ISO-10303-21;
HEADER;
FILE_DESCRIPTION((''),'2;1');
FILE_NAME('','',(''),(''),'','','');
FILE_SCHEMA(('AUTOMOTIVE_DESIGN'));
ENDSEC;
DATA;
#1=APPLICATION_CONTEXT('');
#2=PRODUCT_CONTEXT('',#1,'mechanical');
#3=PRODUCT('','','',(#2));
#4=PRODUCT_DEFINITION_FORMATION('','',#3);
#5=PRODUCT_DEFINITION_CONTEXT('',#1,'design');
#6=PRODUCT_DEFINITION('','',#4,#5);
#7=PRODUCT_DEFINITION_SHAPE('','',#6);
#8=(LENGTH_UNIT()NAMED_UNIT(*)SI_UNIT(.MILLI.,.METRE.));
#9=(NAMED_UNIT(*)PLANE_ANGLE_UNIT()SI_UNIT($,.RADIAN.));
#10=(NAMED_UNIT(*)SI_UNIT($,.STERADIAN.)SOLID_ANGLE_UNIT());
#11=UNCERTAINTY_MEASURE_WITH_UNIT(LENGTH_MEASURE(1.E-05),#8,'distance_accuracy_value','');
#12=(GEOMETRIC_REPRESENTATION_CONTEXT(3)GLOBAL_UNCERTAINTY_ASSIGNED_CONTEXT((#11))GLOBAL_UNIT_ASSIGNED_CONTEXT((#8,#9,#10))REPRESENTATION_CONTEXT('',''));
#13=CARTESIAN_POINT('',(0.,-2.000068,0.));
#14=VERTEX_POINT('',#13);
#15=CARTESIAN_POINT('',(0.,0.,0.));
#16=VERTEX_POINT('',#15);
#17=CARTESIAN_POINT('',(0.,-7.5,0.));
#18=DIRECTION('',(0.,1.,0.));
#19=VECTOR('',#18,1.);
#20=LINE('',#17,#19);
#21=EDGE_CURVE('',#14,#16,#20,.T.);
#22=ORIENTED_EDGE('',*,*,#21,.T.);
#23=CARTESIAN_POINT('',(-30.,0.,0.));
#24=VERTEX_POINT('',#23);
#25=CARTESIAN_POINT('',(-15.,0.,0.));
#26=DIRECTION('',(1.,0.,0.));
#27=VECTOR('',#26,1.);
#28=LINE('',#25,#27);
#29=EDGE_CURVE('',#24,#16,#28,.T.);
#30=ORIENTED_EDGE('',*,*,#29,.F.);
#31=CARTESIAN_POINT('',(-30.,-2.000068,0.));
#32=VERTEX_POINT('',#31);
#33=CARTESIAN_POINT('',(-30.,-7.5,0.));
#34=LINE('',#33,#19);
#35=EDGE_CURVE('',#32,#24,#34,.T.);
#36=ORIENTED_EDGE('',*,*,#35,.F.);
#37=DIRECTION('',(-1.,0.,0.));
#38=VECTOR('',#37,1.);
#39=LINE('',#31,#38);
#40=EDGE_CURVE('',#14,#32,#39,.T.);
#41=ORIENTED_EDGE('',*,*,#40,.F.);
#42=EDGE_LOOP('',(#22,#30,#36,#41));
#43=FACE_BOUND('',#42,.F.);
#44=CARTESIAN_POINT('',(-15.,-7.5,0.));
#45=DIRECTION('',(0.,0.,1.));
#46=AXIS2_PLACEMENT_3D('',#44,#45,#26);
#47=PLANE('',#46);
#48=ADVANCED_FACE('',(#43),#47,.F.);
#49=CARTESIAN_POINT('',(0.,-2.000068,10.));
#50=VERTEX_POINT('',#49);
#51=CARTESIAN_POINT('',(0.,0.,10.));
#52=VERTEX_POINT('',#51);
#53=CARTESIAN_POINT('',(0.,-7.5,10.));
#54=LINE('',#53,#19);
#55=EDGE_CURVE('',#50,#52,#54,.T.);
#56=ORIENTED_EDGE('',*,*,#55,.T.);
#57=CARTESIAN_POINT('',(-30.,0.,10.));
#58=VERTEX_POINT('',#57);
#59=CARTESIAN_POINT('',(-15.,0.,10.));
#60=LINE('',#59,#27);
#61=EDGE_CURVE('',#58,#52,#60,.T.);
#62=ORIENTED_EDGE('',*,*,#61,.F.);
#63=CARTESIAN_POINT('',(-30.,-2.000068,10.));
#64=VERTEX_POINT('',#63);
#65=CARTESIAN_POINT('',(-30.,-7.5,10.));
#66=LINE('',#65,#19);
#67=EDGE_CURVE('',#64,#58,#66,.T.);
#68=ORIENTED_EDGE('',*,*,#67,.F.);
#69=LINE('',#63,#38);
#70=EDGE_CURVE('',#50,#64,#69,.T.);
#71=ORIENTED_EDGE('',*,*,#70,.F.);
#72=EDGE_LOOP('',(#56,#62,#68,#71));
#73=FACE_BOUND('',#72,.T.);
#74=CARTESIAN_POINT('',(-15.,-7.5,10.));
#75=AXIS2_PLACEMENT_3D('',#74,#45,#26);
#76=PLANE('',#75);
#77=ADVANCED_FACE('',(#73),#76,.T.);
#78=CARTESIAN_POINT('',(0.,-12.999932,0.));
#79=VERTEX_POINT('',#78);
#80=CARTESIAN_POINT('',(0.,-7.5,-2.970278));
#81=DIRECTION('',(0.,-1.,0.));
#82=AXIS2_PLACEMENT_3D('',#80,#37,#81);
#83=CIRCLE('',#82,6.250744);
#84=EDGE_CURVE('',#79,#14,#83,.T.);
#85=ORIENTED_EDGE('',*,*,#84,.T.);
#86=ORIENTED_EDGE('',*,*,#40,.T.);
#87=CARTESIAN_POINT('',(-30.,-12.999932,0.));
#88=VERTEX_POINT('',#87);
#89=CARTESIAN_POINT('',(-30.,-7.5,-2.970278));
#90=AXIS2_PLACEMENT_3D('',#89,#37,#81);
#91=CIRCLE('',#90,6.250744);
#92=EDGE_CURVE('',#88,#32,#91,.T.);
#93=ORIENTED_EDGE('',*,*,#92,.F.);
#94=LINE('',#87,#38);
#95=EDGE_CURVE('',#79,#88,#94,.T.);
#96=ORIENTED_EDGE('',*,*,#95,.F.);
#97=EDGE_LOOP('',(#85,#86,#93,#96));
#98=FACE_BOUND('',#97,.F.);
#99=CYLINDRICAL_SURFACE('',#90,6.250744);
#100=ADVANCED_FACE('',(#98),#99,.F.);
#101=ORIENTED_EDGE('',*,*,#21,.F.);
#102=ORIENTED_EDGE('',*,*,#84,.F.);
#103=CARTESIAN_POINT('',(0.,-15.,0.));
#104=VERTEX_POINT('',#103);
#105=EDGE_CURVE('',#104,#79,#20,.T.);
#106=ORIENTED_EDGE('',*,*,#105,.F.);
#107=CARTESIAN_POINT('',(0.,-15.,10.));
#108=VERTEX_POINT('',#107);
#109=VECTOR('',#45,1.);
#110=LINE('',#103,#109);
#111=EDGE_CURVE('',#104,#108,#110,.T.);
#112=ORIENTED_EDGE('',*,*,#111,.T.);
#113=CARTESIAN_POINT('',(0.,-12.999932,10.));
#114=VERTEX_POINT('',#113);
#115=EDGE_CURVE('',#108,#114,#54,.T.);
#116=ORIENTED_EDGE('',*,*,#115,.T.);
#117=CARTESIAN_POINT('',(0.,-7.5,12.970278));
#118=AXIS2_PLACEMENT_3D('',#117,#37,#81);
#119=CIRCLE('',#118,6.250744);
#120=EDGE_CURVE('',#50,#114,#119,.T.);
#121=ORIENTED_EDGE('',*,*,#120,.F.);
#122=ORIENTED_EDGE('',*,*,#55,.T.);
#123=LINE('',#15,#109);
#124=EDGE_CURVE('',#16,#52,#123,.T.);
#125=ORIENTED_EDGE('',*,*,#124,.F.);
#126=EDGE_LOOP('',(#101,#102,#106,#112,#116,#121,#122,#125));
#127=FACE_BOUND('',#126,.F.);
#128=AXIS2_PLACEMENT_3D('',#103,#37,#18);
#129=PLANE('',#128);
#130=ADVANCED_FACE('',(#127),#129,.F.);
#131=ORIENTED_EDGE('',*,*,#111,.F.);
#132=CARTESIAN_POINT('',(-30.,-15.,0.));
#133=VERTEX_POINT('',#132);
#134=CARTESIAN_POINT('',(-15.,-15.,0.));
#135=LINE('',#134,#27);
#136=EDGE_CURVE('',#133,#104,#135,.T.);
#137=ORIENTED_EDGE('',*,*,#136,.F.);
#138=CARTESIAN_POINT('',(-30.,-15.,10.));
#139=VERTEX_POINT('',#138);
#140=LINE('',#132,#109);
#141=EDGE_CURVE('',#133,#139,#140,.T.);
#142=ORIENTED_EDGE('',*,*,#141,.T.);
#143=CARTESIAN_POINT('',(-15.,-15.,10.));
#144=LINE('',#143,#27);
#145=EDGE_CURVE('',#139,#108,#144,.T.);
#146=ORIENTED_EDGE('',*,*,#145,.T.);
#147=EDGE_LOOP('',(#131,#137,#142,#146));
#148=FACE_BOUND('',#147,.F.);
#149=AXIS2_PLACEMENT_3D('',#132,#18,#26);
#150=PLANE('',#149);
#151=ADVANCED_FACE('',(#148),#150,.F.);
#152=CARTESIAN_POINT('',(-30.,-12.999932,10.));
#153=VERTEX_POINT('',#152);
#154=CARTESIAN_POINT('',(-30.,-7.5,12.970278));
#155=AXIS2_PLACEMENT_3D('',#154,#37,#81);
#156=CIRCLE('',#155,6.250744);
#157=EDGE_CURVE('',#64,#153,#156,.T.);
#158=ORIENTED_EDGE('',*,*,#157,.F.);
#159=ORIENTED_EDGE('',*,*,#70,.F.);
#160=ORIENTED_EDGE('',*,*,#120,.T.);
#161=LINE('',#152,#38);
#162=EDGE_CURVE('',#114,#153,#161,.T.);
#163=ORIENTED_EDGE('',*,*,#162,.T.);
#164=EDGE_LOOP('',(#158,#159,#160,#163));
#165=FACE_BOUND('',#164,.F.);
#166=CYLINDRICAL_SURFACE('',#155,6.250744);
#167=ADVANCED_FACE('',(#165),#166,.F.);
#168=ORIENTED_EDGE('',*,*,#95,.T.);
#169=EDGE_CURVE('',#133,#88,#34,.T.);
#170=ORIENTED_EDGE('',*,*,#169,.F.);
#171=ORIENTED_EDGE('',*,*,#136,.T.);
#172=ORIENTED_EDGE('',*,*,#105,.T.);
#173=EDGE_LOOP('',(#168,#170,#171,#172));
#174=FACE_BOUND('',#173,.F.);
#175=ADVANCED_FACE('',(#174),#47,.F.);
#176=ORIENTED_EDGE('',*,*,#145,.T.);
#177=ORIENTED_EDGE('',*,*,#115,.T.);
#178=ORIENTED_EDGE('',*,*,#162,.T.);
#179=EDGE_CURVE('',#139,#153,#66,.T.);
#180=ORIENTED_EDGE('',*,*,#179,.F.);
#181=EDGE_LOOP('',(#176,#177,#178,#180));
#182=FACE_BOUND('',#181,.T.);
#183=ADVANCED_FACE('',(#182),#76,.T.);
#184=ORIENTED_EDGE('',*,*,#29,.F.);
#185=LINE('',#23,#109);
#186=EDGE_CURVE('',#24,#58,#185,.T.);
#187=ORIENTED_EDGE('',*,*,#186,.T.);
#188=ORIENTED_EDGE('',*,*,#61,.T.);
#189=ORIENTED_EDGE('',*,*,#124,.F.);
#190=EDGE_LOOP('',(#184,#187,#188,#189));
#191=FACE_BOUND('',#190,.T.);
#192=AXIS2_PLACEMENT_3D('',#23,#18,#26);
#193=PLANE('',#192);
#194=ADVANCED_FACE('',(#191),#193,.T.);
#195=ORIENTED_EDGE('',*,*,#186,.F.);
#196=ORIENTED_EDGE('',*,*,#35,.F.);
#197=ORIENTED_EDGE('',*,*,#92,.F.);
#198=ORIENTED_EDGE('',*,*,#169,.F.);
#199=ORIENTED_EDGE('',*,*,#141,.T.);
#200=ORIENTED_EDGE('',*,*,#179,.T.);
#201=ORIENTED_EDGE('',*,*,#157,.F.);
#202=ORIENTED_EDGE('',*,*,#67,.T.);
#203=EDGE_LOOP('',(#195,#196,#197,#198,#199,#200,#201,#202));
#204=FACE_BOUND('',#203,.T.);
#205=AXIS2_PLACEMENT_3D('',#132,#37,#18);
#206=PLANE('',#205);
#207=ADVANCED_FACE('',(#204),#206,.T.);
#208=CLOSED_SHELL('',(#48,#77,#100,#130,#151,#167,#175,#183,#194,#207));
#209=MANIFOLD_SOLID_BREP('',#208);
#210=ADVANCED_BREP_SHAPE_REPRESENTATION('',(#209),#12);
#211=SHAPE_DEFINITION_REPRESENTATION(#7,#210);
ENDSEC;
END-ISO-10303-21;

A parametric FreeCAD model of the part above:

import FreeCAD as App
import Part
import Sketcher
from FreeCAD import Vector
Q = App.Units.Quantity


def add_polygon(sketch, points):
    """Adds a closed chain of lines whose ends are joined by coincident constraints."""
    first, n = sketch.GeometryCount, len(points)
    for a, b in zip(points, points[1:] + points[:1]):
        sketch.addGeometry(Part.LineSegment(App.Vector(*a, 0), App.Vector(*b, 0)), False)
    for i in range(n):
        sketch.addConstraint(Sketcher.Constraint("Coincident", first + i, 2, first + (i + 1) % n, 1))

doc = App.newDocument("Part")
body = doc.addObject("PartDesign::Body", "Body")

# Sketch on XY plane
sketch1 = body.newObject("Sketcher::SketchObject", "Sketch")
sketch1.AttachmentSupport = (doc.getObject("XY_Plane"), [""])
sketch1.MapMode = "FlatFace"
add_polygon(sketch1, [(-30, 0), (-30, -15), (0, -15), (0, 0)])  # lines 0-3
sketch1.addConstraint([
    Sketcher.Constraint("Vertical", 0),
    Sketcher.Constraint("Horizontal", 1),
    Sketcher.Constraint("Vertical", 2),
    Sketcher.Constraint("Horizontal", 3),
    Sketcher.Constraint("Coincident", 2, 2, -1, 1),
    Sketcher.Constraint("DistanceX", 1, 1, 1, 2, Q("30 mm")),
    Sketcher.Constraint("DistanceY", 0, 2, 0, 1, Q("15 mm")),
])
pad1 = body.newObject("PartDesign::Pad", "Pad")
pad1.Profile = sketch1
pad1.Length = 10

# Sketch on YZ plane
sketch2 = body.newObject("Sketcher::SketchObject", "Sketch001")
sketch2.AttachmentSupport = (doc.getObject("YZ_Plane"), [""])
sketch2.MapMode = "FlatFace"
sketch2.AttachmentOffset = App.Placement(Vector(0, 0, -30), App.Rotation())
sketch2.addGeometry([
    Part.Circle(Vector(-8, 13, 0), Vector(0, 0, 1), 6),
    Part.Circle(Vector(-8, -3, 0), Vector(0, 0, 1), 6),
], False)
sketch2.addConstraint([
    Sketcher.Constraint("Equal", 0, 1),
    Sketcher.Constraint("Vertical", 0, 3, 1, 3),
    Sketcher.Constraint("DistanceX", 0, 3, -1, 1, Q("7.5 mm")),
    Sketcher.Constraint("Diameter", 0, Q("12.501488 mm")),
    Sketcher.Constraint("DistanceY", 1, 3, -1, 1, Q("2.970278 mm")),
    Sketcher.Constraint("DistanceY", -1, 1, 0, 3, Q("12.970278 mm")),
])
pocket1 = body.newObject("PartDesign::Pocket", "Pocket")
pocket1.Profile = sketch2
pocket1.Length = 30
pocket1.Reversed = True

doc.recompute()
